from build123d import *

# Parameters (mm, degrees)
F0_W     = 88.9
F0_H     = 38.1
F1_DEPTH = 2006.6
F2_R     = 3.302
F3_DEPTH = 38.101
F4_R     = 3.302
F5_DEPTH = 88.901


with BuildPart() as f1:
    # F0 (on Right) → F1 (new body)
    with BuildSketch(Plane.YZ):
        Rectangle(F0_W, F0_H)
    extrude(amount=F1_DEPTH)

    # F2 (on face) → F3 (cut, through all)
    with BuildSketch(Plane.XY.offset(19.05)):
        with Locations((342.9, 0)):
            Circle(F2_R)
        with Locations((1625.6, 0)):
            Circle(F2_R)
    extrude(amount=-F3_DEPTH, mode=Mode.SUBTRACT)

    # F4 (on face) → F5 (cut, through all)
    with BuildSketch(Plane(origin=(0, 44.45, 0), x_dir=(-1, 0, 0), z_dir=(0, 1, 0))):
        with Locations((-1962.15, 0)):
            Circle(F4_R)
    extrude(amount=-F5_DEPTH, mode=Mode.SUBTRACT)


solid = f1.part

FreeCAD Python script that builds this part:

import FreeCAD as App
import Part
import Sketcher

V = App.Vector
Q = App.Units.Quantity


def add_polygon(sketch, points):
    """Adds a closed chain of lines whose ends are joined by coincident constraints."""
    first, n = sketch.GeometryCount, len(points)
    for a, b in zip(points, points[1:] + points[:1]):
        sketch.addGeometry(Part.LineSegment(App.Vector(*a, 0), App.Vector(*b, 0)), False)
    for i in range(n):
        sketch.addConstraint(Sketcher.Constraint("Coincident", first + i, 2, first + (i + 1) % n, 1))

doc = App.newDocument("Part")
body = doc.addObject("PartDesign::Body", "Body")

sketch1 = doc.addObject("Sketcher::SketchObject", "Sketch")
body.addObject(sketch1)
sketch1.AttachmentSupport = (doc.YZ_Plane, [""])
sketch1.MapMode = "FlatFace"
add_polygon(sketch1, [(-44.45, 19.05), (-44.45, -19.05), (44.45, -19.05), (44.45, 19.05)])
sketch1.addConstraint([
    Sketcher.Constraint("Vertical", 0),
    Sketcher.Constraint("Horizontal", 1),
    Sketcher.Constraint("Vertical", 2),
    Sketcher.Constraint("Horizontal", 3),
    Sketcher.Constraint("Symmetric", 0, 2, 2, 2, -1, 1),
    Sketcher.Constraint("DistanceX", 1, 1, 1, 2, Q("3.5 in")),
    Sketcher.Constraint("DistanceY", 0, 2, 0, 1, Q("1.5 in")),
])
pad1 = doc.addObject("PartDesign::Pad", "Pad")
body.addObject(pad1)
pad1.Profile = sketch1
pad1.Length = Q("79 in")

sketch2 = doc.addObject("Sketcher::SketchObject", "Sketch001")
body.addObject(sketch2)
sketch2.AttachmentSupport = (doc.XY_Plane, [""])
sketch2.MapMode = "FlatFace"
sketch2.AttachmentOffset = App.Placement(V(0, 0, 0.75 * 25.4), App.Rotation())
sketch2.addGeometry([
    Part.Circle(V(342.9, 0, 0), V(0, 0, 1), 3.302),
    Part.Circle(V(1625.6, 0, 0), V(0, 0, 1), 3.302),
], False)
sketch2.addConstraint([
    Sketcher.Constraint("Equal", 0, 1),
    Sketcher.Constraint("PointOnObject", 0, 3, -1),
    Sketcher.Constraint("PointOnObject", 1, 3, -1),
    Sketcher.Constraint("Diameter", 0, Q("0.26 in")),
    Sketcher.Constraint("DistanceX", -1, 1, 1, 3, Q("64 in")),
    Sketcher.Constraint("DistanceX", -1, 1, 0, 3, Q("13.5 in")),
])
pocket1 = doc.addObject("PartDesign::Pocket", "Pocket")
body.addObject(pocket1)
pocket1.Profile = sketch2
pocket1.Type = "ThroughAll"

sketch3 = doc.addObject("Sketcher::SketchObject", "Sketch002")
body.addObject(sketch3)
sketch3.AttachmentSupport = (doc.XZ_Plane, [""])
sketch3.MapMode = "FlatFace"
sketch3.AttachmentOffset = App.Placement(V(0, 0, -1.75 * 25.4), App.Rotation())
sketch3.addGeometry(Part.Circle(V(1962.15, 0, 0), V(0, 0, 1), 3.302), False)
sketch3.addConstraint([
    Sketcher.Constraint("PointOnObject", 0, 3, -1),
    Sketcher.Constraint("Diameter", 0, Q("0.26 in")),
    Sketcher.Constraint("DistanceX", -1, 1, 0, 3, Q("77.25 in")),
])
pocket2 = doc.addObject("PartDesign::Pocket", "Pocket001")
body.addObject(pocket2)
pocket2.Profile = sketch3
pocket2.Type = "ThroughAll"
pocket2.Reversed = True

doc.recompute()
